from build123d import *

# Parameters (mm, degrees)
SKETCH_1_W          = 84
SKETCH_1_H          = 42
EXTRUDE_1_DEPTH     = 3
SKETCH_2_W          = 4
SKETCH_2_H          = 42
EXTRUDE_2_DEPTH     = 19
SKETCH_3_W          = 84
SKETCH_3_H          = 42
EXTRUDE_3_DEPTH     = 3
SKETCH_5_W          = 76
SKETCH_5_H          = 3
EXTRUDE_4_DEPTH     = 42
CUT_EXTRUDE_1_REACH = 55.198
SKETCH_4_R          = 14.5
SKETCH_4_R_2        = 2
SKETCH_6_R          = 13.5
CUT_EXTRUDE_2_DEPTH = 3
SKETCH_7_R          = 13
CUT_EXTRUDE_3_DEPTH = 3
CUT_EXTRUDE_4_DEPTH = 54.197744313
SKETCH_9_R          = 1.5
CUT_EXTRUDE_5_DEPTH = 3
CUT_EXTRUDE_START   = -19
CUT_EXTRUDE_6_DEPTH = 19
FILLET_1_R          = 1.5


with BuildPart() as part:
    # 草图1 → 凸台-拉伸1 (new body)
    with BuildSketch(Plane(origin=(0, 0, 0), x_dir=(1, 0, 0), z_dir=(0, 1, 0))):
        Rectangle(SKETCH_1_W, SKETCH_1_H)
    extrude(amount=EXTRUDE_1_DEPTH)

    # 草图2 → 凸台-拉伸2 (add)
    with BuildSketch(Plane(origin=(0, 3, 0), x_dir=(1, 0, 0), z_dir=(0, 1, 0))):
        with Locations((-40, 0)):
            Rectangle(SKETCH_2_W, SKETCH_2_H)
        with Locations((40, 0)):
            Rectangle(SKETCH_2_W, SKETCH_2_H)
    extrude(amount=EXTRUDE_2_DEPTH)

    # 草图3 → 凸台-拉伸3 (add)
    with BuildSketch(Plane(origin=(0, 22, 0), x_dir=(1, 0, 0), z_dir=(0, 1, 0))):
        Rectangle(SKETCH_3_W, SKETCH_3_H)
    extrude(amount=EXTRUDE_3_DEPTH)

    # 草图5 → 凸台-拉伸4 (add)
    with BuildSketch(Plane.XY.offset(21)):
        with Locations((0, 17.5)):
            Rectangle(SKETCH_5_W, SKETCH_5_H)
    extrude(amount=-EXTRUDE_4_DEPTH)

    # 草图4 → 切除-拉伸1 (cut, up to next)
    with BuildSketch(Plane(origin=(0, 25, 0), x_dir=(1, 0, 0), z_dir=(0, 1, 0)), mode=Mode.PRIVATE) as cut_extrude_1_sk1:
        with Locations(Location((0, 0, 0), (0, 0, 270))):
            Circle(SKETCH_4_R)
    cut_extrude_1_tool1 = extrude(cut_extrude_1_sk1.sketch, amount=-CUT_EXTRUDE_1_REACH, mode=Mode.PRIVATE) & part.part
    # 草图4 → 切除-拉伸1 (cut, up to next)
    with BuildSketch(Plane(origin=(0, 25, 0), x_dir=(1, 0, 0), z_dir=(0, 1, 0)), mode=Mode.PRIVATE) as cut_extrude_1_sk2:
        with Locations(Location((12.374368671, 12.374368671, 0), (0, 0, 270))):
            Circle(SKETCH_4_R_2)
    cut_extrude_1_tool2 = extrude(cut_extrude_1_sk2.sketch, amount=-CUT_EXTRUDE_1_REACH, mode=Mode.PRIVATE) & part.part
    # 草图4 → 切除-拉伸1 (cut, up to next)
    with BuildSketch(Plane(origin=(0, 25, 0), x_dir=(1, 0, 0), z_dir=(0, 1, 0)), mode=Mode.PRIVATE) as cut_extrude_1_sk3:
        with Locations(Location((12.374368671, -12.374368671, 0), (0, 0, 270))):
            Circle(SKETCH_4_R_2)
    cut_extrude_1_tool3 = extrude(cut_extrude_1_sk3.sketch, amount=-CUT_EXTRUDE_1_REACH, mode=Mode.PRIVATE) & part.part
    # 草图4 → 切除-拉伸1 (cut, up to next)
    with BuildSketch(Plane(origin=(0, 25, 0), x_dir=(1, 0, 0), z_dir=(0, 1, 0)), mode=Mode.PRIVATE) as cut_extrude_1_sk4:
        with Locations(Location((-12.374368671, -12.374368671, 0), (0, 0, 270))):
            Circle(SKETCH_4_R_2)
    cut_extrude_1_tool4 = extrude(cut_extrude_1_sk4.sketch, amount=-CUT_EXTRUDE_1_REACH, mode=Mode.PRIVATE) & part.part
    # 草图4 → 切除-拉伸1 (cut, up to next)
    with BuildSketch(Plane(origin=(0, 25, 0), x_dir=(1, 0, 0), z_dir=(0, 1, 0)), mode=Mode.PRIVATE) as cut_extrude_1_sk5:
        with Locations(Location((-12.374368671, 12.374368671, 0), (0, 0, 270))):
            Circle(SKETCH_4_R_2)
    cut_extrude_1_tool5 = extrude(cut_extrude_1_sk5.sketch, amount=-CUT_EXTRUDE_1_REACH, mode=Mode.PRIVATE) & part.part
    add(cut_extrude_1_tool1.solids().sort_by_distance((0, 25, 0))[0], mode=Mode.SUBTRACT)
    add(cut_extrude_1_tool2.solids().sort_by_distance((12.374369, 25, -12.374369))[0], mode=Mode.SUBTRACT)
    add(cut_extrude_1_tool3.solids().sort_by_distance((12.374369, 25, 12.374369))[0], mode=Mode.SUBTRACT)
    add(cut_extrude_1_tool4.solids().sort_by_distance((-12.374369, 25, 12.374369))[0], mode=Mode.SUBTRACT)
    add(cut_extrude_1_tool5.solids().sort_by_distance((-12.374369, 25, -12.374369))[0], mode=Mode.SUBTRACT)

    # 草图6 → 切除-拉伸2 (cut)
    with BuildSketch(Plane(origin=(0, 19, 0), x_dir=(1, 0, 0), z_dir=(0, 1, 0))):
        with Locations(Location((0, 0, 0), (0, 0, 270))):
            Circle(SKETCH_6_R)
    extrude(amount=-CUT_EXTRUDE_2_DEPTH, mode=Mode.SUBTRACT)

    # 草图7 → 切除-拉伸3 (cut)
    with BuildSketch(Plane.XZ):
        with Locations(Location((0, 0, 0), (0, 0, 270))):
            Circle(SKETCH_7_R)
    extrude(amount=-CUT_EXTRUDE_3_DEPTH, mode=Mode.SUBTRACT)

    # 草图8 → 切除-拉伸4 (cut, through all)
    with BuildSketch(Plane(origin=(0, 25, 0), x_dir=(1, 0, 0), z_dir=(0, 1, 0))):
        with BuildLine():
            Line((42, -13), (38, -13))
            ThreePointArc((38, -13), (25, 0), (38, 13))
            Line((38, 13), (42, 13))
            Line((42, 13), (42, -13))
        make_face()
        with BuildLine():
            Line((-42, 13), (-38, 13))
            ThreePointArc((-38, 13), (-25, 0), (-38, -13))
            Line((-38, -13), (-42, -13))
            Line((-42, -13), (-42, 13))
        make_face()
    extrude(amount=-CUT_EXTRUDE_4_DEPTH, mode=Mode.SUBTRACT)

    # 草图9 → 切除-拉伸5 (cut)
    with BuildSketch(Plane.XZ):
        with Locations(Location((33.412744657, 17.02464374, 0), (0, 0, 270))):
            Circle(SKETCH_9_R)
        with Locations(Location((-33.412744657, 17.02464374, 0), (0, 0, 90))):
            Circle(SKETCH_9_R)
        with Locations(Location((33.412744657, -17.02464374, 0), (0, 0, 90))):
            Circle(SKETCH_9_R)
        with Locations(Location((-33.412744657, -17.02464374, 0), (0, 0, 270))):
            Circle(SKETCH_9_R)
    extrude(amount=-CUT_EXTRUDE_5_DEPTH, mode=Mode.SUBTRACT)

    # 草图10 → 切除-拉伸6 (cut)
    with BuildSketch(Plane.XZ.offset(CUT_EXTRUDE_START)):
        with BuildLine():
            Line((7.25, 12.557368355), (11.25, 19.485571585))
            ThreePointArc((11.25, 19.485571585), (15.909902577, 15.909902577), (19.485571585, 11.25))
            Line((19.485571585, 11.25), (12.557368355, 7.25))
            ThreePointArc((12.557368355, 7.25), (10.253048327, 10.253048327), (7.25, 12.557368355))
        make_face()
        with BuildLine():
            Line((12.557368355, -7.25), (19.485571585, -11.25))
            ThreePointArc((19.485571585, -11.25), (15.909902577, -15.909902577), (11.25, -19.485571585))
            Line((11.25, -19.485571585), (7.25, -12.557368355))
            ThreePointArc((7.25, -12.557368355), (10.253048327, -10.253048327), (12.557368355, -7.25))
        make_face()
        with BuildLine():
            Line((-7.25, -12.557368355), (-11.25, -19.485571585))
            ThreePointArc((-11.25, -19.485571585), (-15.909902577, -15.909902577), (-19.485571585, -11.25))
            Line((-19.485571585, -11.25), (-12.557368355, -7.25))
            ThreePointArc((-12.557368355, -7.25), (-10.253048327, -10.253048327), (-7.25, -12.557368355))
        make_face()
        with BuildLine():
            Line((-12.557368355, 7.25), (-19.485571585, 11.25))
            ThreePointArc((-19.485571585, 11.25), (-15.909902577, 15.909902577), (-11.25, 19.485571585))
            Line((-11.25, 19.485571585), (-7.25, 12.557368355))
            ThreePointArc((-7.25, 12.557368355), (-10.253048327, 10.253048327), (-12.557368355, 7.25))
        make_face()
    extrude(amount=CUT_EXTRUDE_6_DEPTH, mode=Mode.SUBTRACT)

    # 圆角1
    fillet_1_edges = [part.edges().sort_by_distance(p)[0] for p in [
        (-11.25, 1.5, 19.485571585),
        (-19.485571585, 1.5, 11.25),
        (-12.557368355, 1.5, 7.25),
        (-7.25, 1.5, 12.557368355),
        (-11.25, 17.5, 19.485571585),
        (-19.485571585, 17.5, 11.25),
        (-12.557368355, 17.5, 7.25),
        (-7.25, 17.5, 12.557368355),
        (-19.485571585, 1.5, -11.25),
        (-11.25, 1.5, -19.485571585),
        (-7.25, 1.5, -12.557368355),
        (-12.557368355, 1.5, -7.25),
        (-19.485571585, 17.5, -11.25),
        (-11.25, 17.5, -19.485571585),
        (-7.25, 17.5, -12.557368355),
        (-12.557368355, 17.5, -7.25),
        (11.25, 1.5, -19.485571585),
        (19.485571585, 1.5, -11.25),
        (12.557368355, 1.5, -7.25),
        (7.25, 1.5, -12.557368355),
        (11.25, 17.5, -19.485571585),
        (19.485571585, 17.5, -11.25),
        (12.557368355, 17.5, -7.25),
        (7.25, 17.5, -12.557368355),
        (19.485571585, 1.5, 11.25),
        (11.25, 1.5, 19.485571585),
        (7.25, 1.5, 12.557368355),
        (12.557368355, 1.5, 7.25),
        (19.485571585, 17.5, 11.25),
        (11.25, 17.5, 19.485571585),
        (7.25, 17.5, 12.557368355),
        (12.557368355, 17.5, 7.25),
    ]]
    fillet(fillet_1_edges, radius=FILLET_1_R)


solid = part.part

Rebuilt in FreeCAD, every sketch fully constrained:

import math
import FreeCAD as App
import Part
import Sketcher

V = App.Vector
Q = App.Units.Quantity


def edges_at(feature, points):
    """Names of the edges that pass closest to the given points."""
    edges = feature.Shape.Edges
    near = lambda p: min(range(len(edges)), key=lambda i: edges[i].distToShape(Part.Vertex(*p))[0])
    return sorted({f"Edge{near(p) + 1}" for p in points})

doc = App.newDocument("Part")
body = doc.addObject("PartDesign::Body", "Body")

# Sketch on XZ plane
sketch1 = doc.addObject("Sketcher::SketchObject", "Sketch")
body.addObject(sketch1)
sketch1.AttachmentSupport = (doc.XZ_Plane, [""])
sketch1.MapMode = "FlatFace"
sketch1.addGeometry([
    Part.LineSegment(V(-42, -21, 0), V(-42, 21, 0)),
    Part.LineSegment(V(-42, 21, 0), V(42, 21, 0)),
    Part.LineSegment(V(42, 21, 0), V(42, -21, 0)),
    Part.LineSegment(V(42, -21, 0), V(-42, -21, 0)),
], False)
sketch1.addConstraint([
    Sketcher.Constraint("Coincident", 0, 2, 1, 1),
    Sketcher.Constraint("Coincident", 1, 2, 2, 1),
    Sketcher.Constraint("Coincident", 2, 2, 3, 1),
    Sketcher.Constraint("Coincident", 3, 2, 0, 1),
    Sketcher.Constraint("Vertical", 0),
    Sketcher.Constraint("Horizontal", 1),
    Sketcher.Constraint("Vertical", 2),
    Sketcher.Constraint("Horizontal", 3),
    Sketcher.Constraint("Symmetric", 0, 2, 2, 2, -1, 1),
    Sketcher.Constraint("DistanceX", 1, 1, 1, 2, Q("84 mm")),
    Sketcher.Constraint("DistanceY", 0, 1, 0, 2, Q("42 mm")),
])
pad1 = doc.addObject("PartDesign::Pad", "Pad")
body.addObject(pad1)
pad1.Profile = sketch1
pad1.Length = 3
pad1.Reversed = True

# Sketch on XZ plane
sketch2 = doc.addObject("Sketcher::SketchObject", "Sketch001")
body.addObject(sketch2)
sketch2.AttachmentSupport = (doc.XZ_Plane, [""])
sketch2.MapMode = "FlatFace"
sketch2.AttachmentOffset = App.Placement(V(0, 0, -3), App.Rotation())
sketch2.addGeometry([
    Part.LineSegment(V(-42, -21, 0), V(-42, 21, 0)),  # 0
    Part.LineSegment(V(-42, 21, 0), V(-38, 21, 0)),  # 1
    Part.LineSegment(V(-38, 21, 0), V(-38, -21, 0)),  # 2
    Part.LineSegment(V(-38, -21, 0), V(-42, -21, 0)),  # 3
    Part.LineSegment(V(38, -21, 0), V(38, 21, 0)),  # 4
    Part.LineSegment(V(38, 21, 0), V(42, 21, 0)),  # 5
    Part.LineSegment(V(42, 21, 0), V(42, -21, 0)),  # 6
    Part.LineSegment(V(42, -21, 0), V(38, -21, 0)),  # 7
], False)
sketch2.addConstraint([
    Sketcher.Constraint("Coincident", 0, 2, 1, 1),
    Sketcher.Constraint("Coincident", 1, 2, 2, 1),
    Sketcher.Constraint("Coincident", 2, 2, 3, 1),
    Sketcher.Constraint("Coincident", 3, 2, 0, 1),
    Sketcher.Constraint("Coincident", 4, 2, 5, 1),
    Sketcher.Constraint("Coincident", 5, 2, 6, 1),
    Sketcher.Constraint("Coincident", 6, 2, 7, 1),
    Sketcher.Constraint("Coincident", 7, 2, 4, 1),
    Sketcher.Constraint("Vertical", 0),
    Sketcher.Constraint("Horizontal", 1),
    Sketcher.Constraint("Vertical", 2),
    Sketcher.Constraint("Horizontal", 3),
    Sketcher.Constraint("Vertical", 4),
    Sketcher.Constraint("Horizontal", 5),
    Sketcher.Constraint("Vertical", 6),
    Sketcher.Constraint("Horizontal", 7),
    Sketcher.Constraint("Symmetric", 2, 2, 4, 2, -1, 1),
    Sketcher.Constraint("Symmetric", 0, 2, 6, 2, -1, 1),
    Sketcher.Constraint("Horizontal", 1, 2, 4, 2),
    Sketcher.Constraint("DistanceX", 1, 1, 1, 2, Q("4 mm")),
    Sketcher.Constraint("DistanceY", 0, 1, 0, 2, Q("42 mm")),
    Sketcher.Constraint("DistanceX", 0, 2, -1, 1, Q("42 mm")),
])
pad2 = doc.addObject("PartDesign::Pad", "Pad001")
body.addObject(pad2)
pad2.Profile = sketch2
pad2.Length = 19
pad2.Reversed = True

# Sketch on XZ plane
sketch3 = doc.addObject("Sketcher::SketchObject", "Sketch002")
body.addObject(sketch3)
sketch3.AttachmentSupport = (doc.XZ_Plane, [""])
sketch3.MapMode = "FlatFace"
sketch3.AttachmentOffset = App.Placement(V(0, 0, -22), App.Rotation())
sketch3.addGeometry([
    Part.LineSegment(V(-42, -21, 0), V(-42, 21, 0)),
    Part.LineSegment(V(-42, 21, 0), V(42, 21, 0)),
    Part.LineSegment(V(42, 21, 0), V(42, -21, 0)),
    Part.LineSegment(V(42, -21, 0), V(-42, -21, 0)),
], False)
sketch3.addConstraint([
    Sketcher.Constraint("Coincident", 0, 2, 1, 1),
    Sketcher.Constraint("Coincident", 1, 2, 2, 1),
    Sketcher.Constraint("Coincident", 2, 2, 3, 1),
    Sketcher.Constraint("Coincident", 3, 2, 0, 1),
    Sketcher.Constraint("Vertical", 0),
    Sketcher.Constraint("Horizontal", 1),
    Sketcher.Constraint("Vertical", 2),
    Sketcher.Constraint("Horizontal", 3),
    Sketcher.Constraint("Symmetric", 0, 2, 2, 2, -1, 1),
    Sketcher.Constraint("DistanceX", 1, 1, 1, 2, Q("84 mm")),
    Sketcher.Constraint("DistanceY", 0, 1, 0, 2, Q("42 mm")),
])
pad3 = doc.addObject("PartDesign::Pad", "Pad002")
body.addObject(pad3)
pad3.Profile = sketch3
pad3.Length = 3
pad3.Reversed = True

# Sketch on XY plane
sketch4 = doc.addObject("Sketcher::SketchObject", "Sketch003")
body.addObject(sketch4)
sketch4.AttachmentSupport = (doc.XY_Plane, [""])
sketch4.MapMode = "FlatFace"
sketch4.AttachmentOffset = App.Placement(V(0, 0, 21), App.Rotation())
sketch4.addGeometry([
    Part.LineSegment(V(-38, 19, 0), V(-38, 16, 0)),
    Part.LineSegment(V(-38, 16, 0), V(38, 16, 0)),
    Part.LineSegment(V(38, 16, 0), V(38, 19, 0)),
    Part.LineSegment(V(38, 19, 0), V(-38, 19, 0)),
], False)
sketch4.addConstraint([
    Sketcher.Constraint("Coincident", 0, 2, 1, 1),
    Sketcher.Constraint("Coincident", 1, 2, 2, 1),
    Sketcher.Constraint("Coincident", 2, 2, 3, 1),
    Sketcher.Constraint("Coincident", 3, 2, 0, 1),
    Sketcher.Constraint("Vertical", 0),
    Sketcher.Constraint("Horizontal", 1),
    Sketcher.Constraint("Vertical", 2),
    Sketcher.Constraint("Horizontal", 3),
    Sketcher.Constraint("DistanceX", 1, 1, 1, 2, Q("76 mm")),
    Sketcher.Constraint("DistanceY", 0, 2, 0, 1, Q("3 mm")),
    Sketcher.Constraint("DistanceX", 0, 2, -1, 1, Q("38 mm")),
    Sketcher.Constraint("DistanceY", -1, 1, 0, 2, Q("16 mm")),
])
pad4 = doc.addObject("PartDesign::Pad", "Pad003")
body.addObject(pad4)
pad4.Profile = sketch4
pad4.Length = 42
pad4.Reversed = True

# Sketch on XZ plane
sketch5 = doc.addObject("Sketcher::SketchObject", "Sketch004")
body.addObject(sketch5)
sketch5.AttachmentSupport = (doc.XZ_Plane, [""])
sketch5.MapMode = "FlatFace"
sketch5.AttachmentOffset = App.Placement(V(0, 0, -25), App.Rotation())
sketch5.addGeometry(Part.Circle(V(0, 0, 0), V(0, 0, 1), 14), False)
sketch5.addConstraint([
    Sketcher.Constraint("Coincident", 0, 3, -1, 1),
    Sketcher.Constraint("Diameter", 0, Q("29 mm")),
])
pocket1 = doc.addObject("PartDesign::Pocket", "Pocket")
body.addObject(pocket1)
pocket1.Profile = sketch5
pocket1.Type = "UpToFirst"
pocket1.Reversed = True

# Sketch on XZ plane
sketch6 = doc.addObject("Sketcher::SketchObject", "Sketch005")
body.addObject(sketch6)
sketch6.AttachmentSupport = (doc.XZ_Plane, [""])
sketch6.MapMode = "FlatFace"
sketch6.AttachmentOffset = App.Placement(V(0, 0, -25), App.Rotation())
sketch6.addGeometry(Part.Circle(V(12.4, -12.4, 0), V(0, 0, 1), 2), False)
sketch6.addConstraint([
    Sketcher.Constraint("Diameter", 0, Q("4 mm")),
    Sketcher.Constraint("DistanceX", -1, 1, 0, 3, Q("12.374369 mm")),
    Sketcher.Constraint("DistanceY", 0, 3, -1, 1, Q("12.374369 mm")),
])
pocket2 = doc.addObject("PartDesign::Pocket", "Pocket001")
body.addObject(pocket2)
pocket2.Profile = sketch6
pocket2.Type = "UpToFirst"
pocket2.Reversed = True

# Sketch on XZ plane
sketch7 = doc.addObject("Sketcher::SketchObject", "Sketch006")
body.addObject(sketch7)
sketch7.AttachmentSupport = (doc.XZ_Plane, [""])
sketch7.MapMode = "FlatFace"
sketch7.AttachmentOffset = App.Placement(V(0, 0, -25), App.Rotation())
sketch7.addGeometry(Part.Circle(V(12.4, 12.4, 0), V(0, 0, 1), 2), False)
sketch7.addConstraint([
    Sketcher.Constraint("Diameter", 0, Q("4 mm")),
    Sketcher.Constraint("DistanceX", -1, 1, 0, 3, Q("12.374369 mm")),
    Sketcher.Constraint("DistanceY", -1, 1, 0, 3, Q("12.374369 mm")),
])
pocket3 = doc.addObject("PartDesign::Pocket", "Pocket002")
body.addObject(pocket3)
pocket3.Profile = sketch7
pocket3.Type = "UpToFirst"
pocket3.Reversed = True

# Sketch on XZ plane
sketch8 = doc.addObject("Sketcher::SketchObject", "Sketch007")
body.addObject(sketch8)
sketch8.AttachmentSupport = (doc.XZ_Plane, [""])
sketch8.MapMode = "FlatFace"
sketch8.AttachmentOffset = App.Placement(V(0, 0, -25), App.Rotation())
sketch8.addGeometry(Part.Circle(V(-12.4, 12.4, 0), V(0, 0, 1), 2), False)
sketch8.addConstraint([
    Sketcher.Constraint("Diameter", 0, Q("4 mm")),
    Sketcher.Constraint("DistanceX", 0, 3, -1, 1, Q("12.374369 mm")),
    Sketcher.Constraint("DistanceY", -1, 1, 0, 3, Q("12.374369 mm")),
])
pocket4 = doc.addObject("PartDesign::Pocket", "Pocket003")
body.addObject(pocket4)
pocket4.Profile = sketch8
pocket4.Type = "UpToFirst"
pocket4.Reversed = True

# Sketch on XZ plane
sketch9 = doc.addObject("Sketcher::SketchObject", "Sketch008")
body.addObject(sketch9)
sketch9.AttachmentSupport = (doc.XZ_Plane, [""])
sketch9.MapMode = "FlatFace"
sketch9.AttachmentOffset = App.Placement(V(0, 0, -25), App.Rotation())
sketch9.addGeometry(Part.Circle(V(-12.4, -12.4, 0), V(0, 0, 1), 2), False)
sketch9.addConstraint([
    Sketcher.Constraint("Diameter", 0, Q("4 mm")),
    Sketcher.Constraint("DistanceX", 0, 3, -1, 1, Q("12.374369 mm")),
    Sketcher.Constraint("DistanceY", 0, 3, -1, 1, Q("12.374369 mm")),
])
pocket5 = doc.addObject("PartDesign::Pocket", "Pocket004")
body.addObject(pocket5)
pocket5.Profile = sketch9
pocket5.Type = "UpToFirst"
pocket5.Reversed = True

# Sketch on XZ plane
sketch10 = doc.addObject("Sketcher::SketchObject", "Sketch009")
body.addObject(sketch10)
sketch10.AttachmentSupport = (doc.XZ_Plane, [""])
sketch10.MapMode = "FlatFace"
sketch10.AttachmentOffset = App.Placement(V(0, 0, -19), App.Rotation())
sketch10.addGeometry(Part.Circle(V(0, 0, 0), V(0, 0, 1), 14), False)
sketch10.addConstraint([
    Sketcher.Constraint("Coincident", 0, 3, -1, 1),
    Sketcher.Constraint("Diameter", 0, Q("27 mm")),
])
pocket6 = doc.addObject("PartDesign::Pocket", "Pocket005")
body.addObject(pocket6)
pocket6.Profile = sketch10
pocket6.Length = 3
pocket6.Reversed = True

# Sketch on XZ plane
sketch11 = doc.addObject("Sketcher::SketchObject", "Sketch010")
body.addObject(sketch11)
sketch11.AttachmentSupport = (doc.XZ_Plane, [""])
sketch11.MapMode = "FlatFace"
sketch11.addGeometry(Part.Circle(V(0, 0, 0), V(0, 0, 1), 13), False)
sketch11.addConstraint([
    Sketcher.Constraint("Coincident", 0, 3, -1, 1),
    Sketcher.Constraint("Diameter", 0, Q("26 mm")),
])
pocket7 = doc.addObject("PartDesign::Pocket", "Pocket006")
body.addObject(pocket7)
pocket7.Profile = sketch11
pocket7.Length = 3

# Sketch on XZ plane
sketch12 = doc.addObject("Sketcher::SketchObject", "Sketch011")
body.addObject(sketch12)
sketch12.AttachmentSupport = (doc.XZ_Plane, [""])
sketch12.MapMode = "FlatFace"
sketch12.AttachmentOffset = App.Placement(V(0, 0, -25), App.Rotation())
sketch12.addGeometry([
    Part.LineSegment(V(38, 13, 0), V(42, 13, 0)),  # 0
    Part.LineSegment(V(42, 13, 0), V(42, -13, 0)),  # 1
    Part.LineSegment(V(42, -13, 0), V(38, -13, 0)),  # 2
    Part.ArcOfCircle(Part.Circle(V(38, 0, 0), V(0, 0, 1), 13), math.radians(90), math.radians(270)),  # 3
    Part.LineSegment(V(-38, -13, 0), V(-42, -13, 0)),  # 4
    Part.LineSegment(V(-42, -13, 0), V(-42, 13, 0)),  # 5
    Part.LineSegment(V(-42, 13, 0), V(-38, 13, 0)),  # 6
    Part.ArcOfCircle(Part.Circle(V(-38, 0, 0), V(0, 0, 1), 13), math.radians(-90), math.radians(90)),  # 7
], False)
sketch12.addConstraint([
    Sketcher.Constraint("Coincident", 0, 2, 1, 1),
    Sketcher.Constraint("Coincident", 1, 2, 2, 1),
    Sketcher.Constraint("Tangent", 2, 2, 3, 2),
    Sketcher.Constraint("Tangent", 3, 1, 0, 1),
    Sketcher.Constraint("Coincident", 4, 2, 5, 1),
    Sketcher.Constraint("Coincident", 5, 2, 6, 1),
    Sketcher.Constraint("Tangent", 6, 2, 7, 2),
    Sketcher.Constraint("Tangent", 7, 1, 4, 1),
    Sketcher.Constraint("Horizontal", 0),
    Sketcher.Constraint("Vertical", 1),
    Sketcher.Constraint("Horizontal", 2),
    Sketcher.Constraint("Horizontal", 4),
    Sketcher.Constraint("Vertical", 5),
    Sketcher.Constraint("Horizontal", 6),
    Sketcher.Constraint("Equal", 3, 7),
    Sketcher.Constraint("Symmetric", 3, 3, 7, 3, -1, 1),
    Sketcher.Constraint("Symmetric", 1, 2, 4, 2, -2),
    Sketcher.Constraint("Radius", 3, Q("13 mm")),
    Sketcher.Constraint("DistanceX", 0, 1, 0, 2, Q("4 mm")),
    Sketcher.Constraint("DistanceX", -1, 1, 3, 3, Q("38 mm")),
])
pocket8 = doc.addObject("PartDesign::Pocket", "Pocket007")
body.addObject(pocket8)
pocket8.Profile = sketch12
pocket8.Type = "ThroughAll"
pocket8.Reversed = True

# Sketch on XZ plane
sketch13 = doc.addObject("Sketcher::SketchObject", "Sketch012")
body.addObject(sketch13)
sketch13.AttachmentSupport = (doc.XZ_Plane, [""])
sketch13.MapMode = "FlatFace"
sketch13.addGeometry([
    Part.Circle(V(33.4, 17, 0), V(0, 0, 1), 1.5),
    Part.Circle(V(-33.4, 17, 0), V(0, 0, 1), 1.5),
    Part.Circle(V(33.4, -17, 0), V(0, 0, 1), 1.5),
    Part.Circle(V(-33.4, -17, 0), V(0, 0, 1), 1.5),
], False)
sketch13.addConstraint([
    Sketcher.Constraint("Equal", 0, 1),
    Sketcher.Constraint("Equal", 1, 2),
    Sketcher.Constraint("Equal", 2, 3),
    Sketcher.Constraint("Symmetric", 1, 3, 2, 3, -1, 1),
    Sketcher.Constraint("Symmetric", 0, 3, 3, 3, -1, 1),
    Sketcher.Constraint("Symmetric", 0, 3, 1, 3, -2),
    Sketcher.Constraint("Diameter", 0, Q("3 mm")),
    Sketcher.Constraint("DistanceX", 1, 3, 0, 3, Q("66.825489 mm")),
    Sketcher.Constraint("DistanceY", -1, 1, 0, 3, Q("17.024644 mm")),
])
pocket9 = doc.addObject("PartDesign::Pocket", "Pocket008")
body.addObject(pocket9)
pocket9.Profile = sketch13
pocket9.Length = 3

# Sketch on XZ plane
sketch14 = doc.addObject("Sketcher::SketchObject", "Sketch013")
body.addObject(sketch14)
sketch14.AttachmentSupport = (doc.XZ_Plane, [""])
sketch14.MapMode = "FlatFace"
sketch14.AttachmentOffset = App.Placement(V(0, 0, -19), App.Rotation())
sketch14.addGeometry([
    Part.LineSegment(V(11, 19, 0), V(7, 13, 0)),  # 0
    Part.ArcOfCircle(Part.Circle(V(0, 0, 0), V(0, 0, 1), 15), math.radians(30), math.radians(60)),  # 1
    Part.LineSegment(V(13, 7, 0), V(19, 11, 0)),  # 2
    Part.ArcOfCircle(Part.Circle(V(0, 0, 0), V(0, 0, 1), 22), math.radians(30), math.radians(60)),  # 3
    Part.LineSegment(V(19, -11, 0), V(13, -7, 0)),  # 4
    Part.ArcOfCircle(Part.Circle(V(0, 0, 0), V(0, 0, 1), 15), math.radians(-60), math.radians(-30)),  # 5
    Part.LineSegment(V(7, -13, 0), V(11, -19, 0)),  # 6
    Part.ArcOfCircle(Part.Circle(V(0, 0, 0), V(0, 0, 1), 22), math.radians(-60), math.radians(-30)),  # 7
    Part.LineSegment(V(-11, -19, 0), V(-7, -13, 0)),  # 8
    Part.ArcOfCircle(Part.Circle(V(0, 0, 0), V(0, 0, 1), 15), math.radians(-150), math.radians(-120)),  # 9
    Part.LineSegment(V(-13, -7, 0), V(-19, -11, 0)),  # 10
    Part.ArcOfCircle(Part.Circle(V(0, 0, 0), V(0, 0, 1), 22), math.radians(-150), math.radians(-120)),  # 11
    Part.LineSegment(V(-19, 11, 0), V(-13, 7, 0)),  # 12
    Part.ArcOfCircle(Part.Circle(V(0, 0, 0), V(0, 0, 1), 15), math.radians(120), math.radians(150)),  # 13
    Part.LineSegment(V(-7, 13, 0), V(-11, 19, 0)),  # 14
    Part.ArcOfCircle(Part.Circle(V(0, 0, 0), V(0, 0, 1), 22), math.radians(120), math.radians(150)),  # 15
], False)
sketch14.addConstraint([
    Sketcher.Constraint("Coincident", 0, 2, 1, 2),
    Sketcher.Constraint("Coincident", 1, 1, 2, 1),
    Sketcher.Constraint("Coincident", 2, 2, 3, 1),
    Sketcher.Constraint("Coincident", 3, 2, 0, 1),
    Sketcher.Constraint("Coincident", 4, 2, 5, 2),
    Sketcher.Constraint("Coincident", 5, 1, 6, 1),
    Sketcher.Constraint("Coincident", 6, 2, 7, 1),
    Sketcher.Constraint("Coincident", 7, 2, 4, 1),
    Sketcher.Constraint("Coincident", 8, 2, 9, 2),
    Sketcher.Constraint("Coincident", 9, 1, 10, 1),
    Sketcher.Constraint("Coincident", 10, 2, 11, 1),
    Sketcher.Constraint("Coincident", 11, 2, 8, 1),
    Sketcher.Constraint("Coincident", 12, 2, 13, 2),
    Sketcher.Constraint("Coincident", 13, 1, 14, 1),
    Sketcher.Constraint("Coincident", 14, 2, 15, 1),
    Sketcher.Constraint("Coincident", 15, 2, 12, 1),
    Sketcher.Constraint("Coincident", 1, 3, -1, 1),
    Sketcher.Constraint("Coincident", 3, 3, -1, 1),
    Sketcher.Constraint("Coincident", 5, 3, -1, 1),
    Sketcher.Constraint("Coincident", 7, 3, -1, 1),
    Sketcher.Constraint("Coincident", 9, 3, -1, 1),
    Sketcher.Constraint("Coincident", 11, 3, -1, 1),
    Sketcher.Constraint("Coincident", 13, 3, -1, 1),
    Sketcher.Constraint("Coincident", 15, 3, -1, 1),
    Sketcher.Constraint("Equal", 1, 5),
    Sketcher.Constraint("Equal", 3, 7),
    Sketcher.Constraint("Equal", 5, 9),
    Sketcher.Constraint("Equal", 7, 11),
    Sketcher.Constraint("Equal", 9, 13),
    Sketcher.Constraint("Equal", 11, 15),
    Sketcher.Constraint("Perpendicular", 0, 4),
    Sketcher.Constraint("Perpendicular", 2, 6),
    Sketcher.Constraint("Perpendicular", 4, 8),
    Sketcher.Constraint("Perpendicular", 6, 10),
    Sketcher.Constraint("Perpendicular", 8, 12),
    Sketcher.Constraint("Perpendicular", 10, 14),
    Sketcher.Constraint("Horizontal", 5, 1, 8, 2),
    Sketcher.Constraint("Horizontal", 4, 2, 9, 1),
    Sketcher.Constraint("Horizontal", 7, 2, 10, 2),
    Sketcher.Constraint("Horizontal", 1, 1, 12, 2),
    Sketcher.Constraint("Horizontal", 0, 2, 13, 1),
    Sketcher.Constraint("Vertical", 1, 1, 4, 2),
    Sketcher.Constraint("Vertical", 0, 2, 5, 1),
    Sketcher.Constraint("Radius", 1, Q("14.5 mm")),
    Sketcher.Constraint("Radius", 3, Q("22.5 mm")),
    Sketcher.Constraint("Angle", 0, Q("-120 deg")),
    Sketcher.Constraint("DistanceY", 4, 2, 1, 1, Q("14.5 mm")),
    Sketcher.Constraint("DistanceX", 8, 2, 5, 1, Q("14.5 mm")),
])
pocket10 = doc.addObject("PartDesign::Pocket", "Pocket009")
body.addObject(pocket10)
pocket10.Profile = sketch14
pocket10.Length = 19
pocket10.Reversed = True
doc.recompute()

fillet = doc.addObject("PartDesign::Fillet", "Fillet")
body.addObject(fillet)
fillet.Base = (pocket10, edges_at(pocket10, [
    (-11.25, 1.5, 19.486),
    (-19.486, 1.5, 11.25),
    (-12.557, 1.5, 7.25),
    (-7.25, 1.5, 12.557),
    (-11.25, 17.5, 19.486),
    (-19.486, 17.5, 11.25),
    (-12.557, 17.5, 7.25),
    (-7.25, 17.5, 12.557),
    (-19.486, 1.5, -11.25),
    (-11.25, 1.5, -19.486),
    (-7.25, 1.5, -12.557),
    (-12.557, 1.5, -7.25),
    (-19.486, 17.5, -11.25),
    (-11.25, 17.5, -19.486),
    (-7.25, 17.5, -12.557),
    (-12.557, 17.5, -7.25),
    (11.25, 1.5, -19.486),
    (19.486, 1.5, -11.25),
    (12.557, 1.5, -7.25),
    (7.25, 1.5, -12.557),
    (11.25, 17.5, -19.486),
    (19.486, 17.5, -11.25),
    (12.557, 17.5, -7.25),
    (7.25, 17.5, -12.557),
    (19.486, 1.5, 11.25),
    (11.25, 1.5, 19.486),
    (7.25, 1.5, 12.557),
    (12.557, 1.5, 7.25),
    (19.486, 17.5, 11.25),
    (11.25, 17.5, 19.486),
    (7.25, 17.5, 12.557),
    (12.557, 17.5, 7.25),
]))
fillet.Radius = 1.5

doc.recompute()
